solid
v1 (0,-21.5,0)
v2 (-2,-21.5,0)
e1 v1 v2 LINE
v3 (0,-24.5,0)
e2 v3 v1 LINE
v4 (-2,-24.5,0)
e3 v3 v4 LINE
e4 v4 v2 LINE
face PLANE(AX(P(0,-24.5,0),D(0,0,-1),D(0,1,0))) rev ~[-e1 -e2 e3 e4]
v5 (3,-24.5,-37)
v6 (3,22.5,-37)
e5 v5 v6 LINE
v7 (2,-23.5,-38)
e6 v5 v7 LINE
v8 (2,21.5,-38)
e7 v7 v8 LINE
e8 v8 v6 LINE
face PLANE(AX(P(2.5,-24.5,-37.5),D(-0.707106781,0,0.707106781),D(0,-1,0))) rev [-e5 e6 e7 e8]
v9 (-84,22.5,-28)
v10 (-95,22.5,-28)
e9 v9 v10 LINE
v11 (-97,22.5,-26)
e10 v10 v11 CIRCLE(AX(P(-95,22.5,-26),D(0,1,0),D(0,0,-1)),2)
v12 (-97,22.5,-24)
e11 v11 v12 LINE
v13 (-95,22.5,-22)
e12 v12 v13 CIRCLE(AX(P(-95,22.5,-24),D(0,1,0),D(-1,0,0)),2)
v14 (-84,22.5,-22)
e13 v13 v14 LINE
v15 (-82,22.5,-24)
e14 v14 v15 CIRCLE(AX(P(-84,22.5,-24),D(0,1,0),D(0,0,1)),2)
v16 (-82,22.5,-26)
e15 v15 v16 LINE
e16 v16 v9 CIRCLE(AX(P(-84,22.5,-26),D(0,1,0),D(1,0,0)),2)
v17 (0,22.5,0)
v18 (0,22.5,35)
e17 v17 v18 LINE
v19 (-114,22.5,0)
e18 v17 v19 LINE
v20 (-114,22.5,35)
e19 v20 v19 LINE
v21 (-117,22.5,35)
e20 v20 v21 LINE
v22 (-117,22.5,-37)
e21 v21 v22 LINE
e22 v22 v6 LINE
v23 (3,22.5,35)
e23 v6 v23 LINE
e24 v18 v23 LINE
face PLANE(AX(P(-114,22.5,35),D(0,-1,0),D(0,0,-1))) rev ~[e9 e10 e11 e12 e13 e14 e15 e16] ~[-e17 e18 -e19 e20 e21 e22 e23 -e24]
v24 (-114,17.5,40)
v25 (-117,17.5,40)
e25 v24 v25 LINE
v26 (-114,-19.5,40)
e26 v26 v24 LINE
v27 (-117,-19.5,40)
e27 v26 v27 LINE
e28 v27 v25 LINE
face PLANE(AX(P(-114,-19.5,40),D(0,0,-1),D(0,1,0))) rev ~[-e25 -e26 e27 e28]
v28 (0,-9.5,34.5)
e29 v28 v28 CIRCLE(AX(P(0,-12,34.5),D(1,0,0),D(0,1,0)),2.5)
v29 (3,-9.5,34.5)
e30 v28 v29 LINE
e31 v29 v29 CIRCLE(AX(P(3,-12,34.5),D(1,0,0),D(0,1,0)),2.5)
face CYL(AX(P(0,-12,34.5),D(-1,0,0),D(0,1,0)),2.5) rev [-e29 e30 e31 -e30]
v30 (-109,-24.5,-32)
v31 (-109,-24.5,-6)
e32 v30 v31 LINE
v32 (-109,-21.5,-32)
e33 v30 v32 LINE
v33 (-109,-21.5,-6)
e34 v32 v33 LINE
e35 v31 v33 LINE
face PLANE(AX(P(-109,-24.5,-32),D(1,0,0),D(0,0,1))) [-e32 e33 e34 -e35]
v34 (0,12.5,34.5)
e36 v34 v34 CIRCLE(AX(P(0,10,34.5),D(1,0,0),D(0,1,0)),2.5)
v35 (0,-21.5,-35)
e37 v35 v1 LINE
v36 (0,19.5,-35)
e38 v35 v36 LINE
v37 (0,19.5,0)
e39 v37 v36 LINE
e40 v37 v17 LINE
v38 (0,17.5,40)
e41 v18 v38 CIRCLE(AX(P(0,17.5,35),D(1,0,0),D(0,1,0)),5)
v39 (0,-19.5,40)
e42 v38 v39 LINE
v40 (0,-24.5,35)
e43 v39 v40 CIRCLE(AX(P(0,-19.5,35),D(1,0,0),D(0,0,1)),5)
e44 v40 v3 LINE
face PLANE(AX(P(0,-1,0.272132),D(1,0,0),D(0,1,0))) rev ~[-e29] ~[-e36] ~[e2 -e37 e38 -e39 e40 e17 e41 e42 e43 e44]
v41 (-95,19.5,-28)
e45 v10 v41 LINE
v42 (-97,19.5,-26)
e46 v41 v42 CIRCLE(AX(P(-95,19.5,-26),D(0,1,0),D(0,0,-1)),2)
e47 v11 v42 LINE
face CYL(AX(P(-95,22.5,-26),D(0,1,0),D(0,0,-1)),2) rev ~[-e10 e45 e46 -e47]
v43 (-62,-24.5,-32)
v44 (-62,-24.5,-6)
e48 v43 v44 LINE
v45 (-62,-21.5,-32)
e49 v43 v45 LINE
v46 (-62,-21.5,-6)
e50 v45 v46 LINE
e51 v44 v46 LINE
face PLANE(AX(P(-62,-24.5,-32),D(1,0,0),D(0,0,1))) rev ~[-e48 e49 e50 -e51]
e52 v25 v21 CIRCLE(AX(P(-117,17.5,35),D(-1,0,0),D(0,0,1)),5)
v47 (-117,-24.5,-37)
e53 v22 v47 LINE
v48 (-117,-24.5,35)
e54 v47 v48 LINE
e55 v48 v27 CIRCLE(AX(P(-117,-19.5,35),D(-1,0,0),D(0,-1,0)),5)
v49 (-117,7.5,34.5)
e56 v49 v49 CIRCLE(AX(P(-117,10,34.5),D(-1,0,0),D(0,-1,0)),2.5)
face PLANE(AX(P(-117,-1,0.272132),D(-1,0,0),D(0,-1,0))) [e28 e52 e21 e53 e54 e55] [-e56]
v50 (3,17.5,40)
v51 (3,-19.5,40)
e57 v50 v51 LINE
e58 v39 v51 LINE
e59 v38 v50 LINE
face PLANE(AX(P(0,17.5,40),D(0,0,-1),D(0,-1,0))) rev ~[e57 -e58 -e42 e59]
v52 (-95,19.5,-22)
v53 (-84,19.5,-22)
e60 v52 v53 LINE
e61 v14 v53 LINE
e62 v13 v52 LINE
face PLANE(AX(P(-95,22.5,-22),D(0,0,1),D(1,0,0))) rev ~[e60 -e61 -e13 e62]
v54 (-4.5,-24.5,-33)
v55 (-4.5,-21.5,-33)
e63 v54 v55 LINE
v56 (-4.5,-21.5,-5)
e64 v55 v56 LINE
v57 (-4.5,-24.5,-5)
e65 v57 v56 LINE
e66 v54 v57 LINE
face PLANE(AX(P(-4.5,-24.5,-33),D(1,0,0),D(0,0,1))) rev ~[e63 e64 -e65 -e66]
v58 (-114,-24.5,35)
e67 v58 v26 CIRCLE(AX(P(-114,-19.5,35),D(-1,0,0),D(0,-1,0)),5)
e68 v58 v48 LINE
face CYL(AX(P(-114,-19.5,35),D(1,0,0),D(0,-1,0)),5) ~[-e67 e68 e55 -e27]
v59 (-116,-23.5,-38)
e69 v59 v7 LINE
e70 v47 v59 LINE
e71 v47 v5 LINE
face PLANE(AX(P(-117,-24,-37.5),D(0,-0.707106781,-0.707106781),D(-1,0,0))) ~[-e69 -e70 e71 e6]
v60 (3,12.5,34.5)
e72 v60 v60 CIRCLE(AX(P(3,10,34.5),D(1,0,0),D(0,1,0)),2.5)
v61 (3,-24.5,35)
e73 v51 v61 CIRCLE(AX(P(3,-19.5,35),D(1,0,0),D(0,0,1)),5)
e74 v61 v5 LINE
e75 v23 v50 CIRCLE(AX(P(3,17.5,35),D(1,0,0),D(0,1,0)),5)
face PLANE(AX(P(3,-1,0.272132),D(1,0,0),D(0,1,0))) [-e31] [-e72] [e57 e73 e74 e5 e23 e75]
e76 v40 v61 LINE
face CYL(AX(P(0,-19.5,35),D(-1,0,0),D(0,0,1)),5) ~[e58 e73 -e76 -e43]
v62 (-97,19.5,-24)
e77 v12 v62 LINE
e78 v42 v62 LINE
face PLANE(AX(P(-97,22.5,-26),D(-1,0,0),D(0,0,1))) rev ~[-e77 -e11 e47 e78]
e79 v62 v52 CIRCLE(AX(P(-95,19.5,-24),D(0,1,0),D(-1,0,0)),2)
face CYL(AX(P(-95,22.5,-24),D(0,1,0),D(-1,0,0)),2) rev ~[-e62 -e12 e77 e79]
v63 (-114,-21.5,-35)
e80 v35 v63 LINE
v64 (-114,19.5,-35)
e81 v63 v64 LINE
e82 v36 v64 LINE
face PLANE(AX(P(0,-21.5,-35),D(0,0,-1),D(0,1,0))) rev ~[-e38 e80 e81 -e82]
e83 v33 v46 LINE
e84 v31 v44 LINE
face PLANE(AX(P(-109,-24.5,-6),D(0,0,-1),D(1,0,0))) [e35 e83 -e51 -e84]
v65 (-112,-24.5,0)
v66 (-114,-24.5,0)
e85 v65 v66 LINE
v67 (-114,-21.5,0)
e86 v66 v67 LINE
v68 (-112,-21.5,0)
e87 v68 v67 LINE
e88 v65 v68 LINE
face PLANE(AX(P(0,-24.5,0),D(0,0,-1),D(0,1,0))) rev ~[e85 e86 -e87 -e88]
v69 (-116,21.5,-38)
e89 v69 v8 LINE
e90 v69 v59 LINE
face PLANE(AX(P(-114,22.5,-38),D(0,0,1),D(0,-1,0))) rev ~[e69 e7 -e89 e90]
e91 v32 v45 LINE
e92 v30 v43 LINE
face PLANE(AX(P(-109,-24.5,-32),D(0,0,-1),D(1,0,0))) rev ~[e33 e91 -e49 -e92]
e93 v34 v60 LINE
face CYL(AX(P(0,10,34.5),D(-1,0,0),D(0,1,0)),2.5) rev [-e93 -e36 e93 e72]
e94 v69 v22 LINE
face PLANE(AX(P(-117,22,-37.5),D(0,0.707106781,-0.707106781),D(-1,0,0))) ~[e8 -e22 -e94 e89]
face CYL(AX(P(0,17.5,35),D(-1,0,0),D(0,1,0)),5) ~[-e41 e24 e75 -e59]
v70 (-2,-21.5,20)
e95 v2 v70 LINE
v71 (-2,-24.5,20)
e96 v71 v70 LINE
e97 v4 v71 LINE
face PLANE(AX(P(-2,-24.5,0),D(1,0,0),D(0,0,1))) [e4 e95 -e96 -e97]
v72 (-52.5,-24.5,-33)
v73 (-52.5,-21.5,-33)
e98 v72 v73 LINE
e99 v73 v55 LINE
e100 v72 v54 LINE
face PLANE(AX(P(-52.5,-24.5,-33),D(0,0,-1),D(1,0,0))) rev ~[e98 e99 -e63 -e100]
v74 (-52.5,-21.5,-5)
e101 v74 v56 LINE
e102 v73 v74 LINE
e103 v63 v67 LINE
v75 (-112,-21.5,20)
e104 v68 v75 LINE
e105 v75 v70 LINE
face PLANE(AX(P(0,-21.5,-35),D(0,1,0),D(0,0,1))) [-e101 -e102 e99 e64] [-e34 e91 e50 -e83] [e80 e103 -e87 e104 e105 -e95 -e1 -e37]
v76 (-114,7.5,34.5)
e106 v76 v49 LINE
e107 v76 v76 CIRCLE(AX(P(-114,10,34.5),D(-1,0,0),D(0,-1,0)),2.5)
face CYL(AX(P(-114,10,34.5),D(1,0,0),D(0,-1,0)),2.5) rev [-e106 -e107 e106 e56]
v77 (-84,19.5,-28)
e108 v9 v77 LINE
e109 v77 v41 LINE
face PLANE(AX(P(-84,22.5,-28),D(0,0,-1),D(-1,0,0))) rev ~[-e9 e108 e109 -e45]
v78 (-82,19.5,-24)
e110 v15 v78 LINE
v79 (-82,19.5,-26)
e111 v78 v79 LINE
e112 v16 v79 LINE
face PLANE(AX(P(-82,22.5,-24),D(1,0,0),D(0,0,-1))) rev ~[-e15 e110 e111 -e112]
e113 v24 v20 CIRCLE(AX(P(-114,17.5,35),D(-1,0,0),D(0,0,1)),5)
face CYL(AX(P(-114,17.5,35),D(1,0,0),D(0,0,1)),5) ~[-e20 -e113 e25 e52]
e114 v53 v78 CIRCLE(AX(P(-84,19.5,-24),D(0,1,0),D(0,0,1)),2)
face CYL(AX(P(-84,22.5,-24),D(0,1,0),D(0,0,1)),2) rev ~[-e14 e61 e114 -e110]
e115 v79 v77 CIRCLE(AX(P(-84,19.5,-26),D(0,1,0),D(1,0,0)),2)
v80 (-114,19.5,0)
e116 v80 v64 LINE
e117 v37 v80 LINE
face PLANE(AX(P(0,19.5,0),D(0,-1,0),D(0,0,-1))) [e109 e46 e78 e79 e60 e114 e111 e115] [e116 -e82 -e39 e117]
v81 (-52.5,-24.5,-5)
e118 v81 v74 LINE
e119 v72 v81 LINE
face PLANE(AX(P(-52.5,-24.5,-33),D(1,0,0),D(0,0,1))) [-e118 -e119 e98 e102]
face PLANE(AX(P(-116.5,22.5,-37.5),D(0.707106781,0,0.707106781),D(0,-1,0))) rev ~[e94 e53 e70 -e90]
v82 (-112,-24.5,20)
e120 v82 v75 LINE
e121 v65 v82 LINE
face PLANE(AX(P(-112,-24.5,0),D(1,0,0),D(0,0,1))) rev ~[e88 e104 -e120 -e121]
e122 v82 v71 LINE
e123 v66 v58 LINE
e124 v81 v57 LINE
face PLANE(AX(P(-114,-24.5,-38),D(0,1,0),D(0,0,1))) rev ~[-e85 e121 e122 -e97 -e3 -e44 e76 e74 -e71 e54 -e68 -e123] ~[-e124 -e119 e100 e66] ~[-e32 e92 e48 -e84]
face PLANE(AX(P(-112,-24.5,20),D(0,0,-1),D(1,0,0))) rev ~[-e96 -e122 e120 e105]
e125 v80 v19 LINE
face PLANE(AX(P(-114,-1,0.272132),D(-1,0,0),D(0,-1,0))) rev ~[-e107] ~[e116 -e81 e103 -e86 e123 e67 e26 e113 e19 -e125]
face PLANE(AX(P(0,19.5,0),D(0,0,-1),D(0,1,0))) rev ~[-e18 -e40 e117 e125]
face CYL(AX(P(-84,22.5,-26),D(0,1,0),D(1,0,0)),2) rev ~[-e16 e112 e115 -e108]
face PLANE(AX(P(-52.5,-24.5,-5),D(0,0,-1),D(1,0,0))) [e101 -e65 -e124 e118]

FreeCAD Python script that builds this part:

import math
import FreeCAD as App
import Part
import Sketcher

V = App.Vector
Q = App.Units.Quantity


def edges_at(feature, points):
    """Names of the edges that pass closest to the given points."""
    edges = feature.Shape.Edges
    near = lambda p: min(range(len(edges)), key=lambda i: edges[i].distToShape(Part.Vertex(*p))[0])
    return sorted({f"Edge{near(p) + 1}" for p in points})

doc = App.newDocument("Part")
body = doc.addObject("PartDesign::Body", "Body")

# Sketch on YZ plane
sketch1 = doc.addObject("Sketcher::SketchObject", "Sketch")
body.addObject(sketch1)
sketch1.AttachmentSupport = (doc.YZ_Plane, [""])
sketch1.MapMode = "FlatFace"
sketch1.addGeometry([
    Part.ArcOfCircle(Part.Circle(V(17.5, 35, 0), V(0, 0, 1), 5), math.radians(0), math.radians(90)),  # 0
    Part.LineSegment(V(17.5, 40, 0), V(-19.5, 40, 0)),  # 1
    Part.ArcOfCircle(Part.Circle(V(-19.5, 35, 0), V(0, 0, 1), 5), math.radians(90), math.radians(180)),  # 2
    Part.LineSegment(V(-24.5, 35, 0), V(-24.5, -38, 0)),  # 3
    Part.LineSegment(V(-24.5, -38, 0), V(22.5, -38, 0)),  # 4
    Part.LineSegment(V(22.5, -38, 0), V(22.5, 35, 0)),  # 5
    Part.Circle(V(-12, 34.5, 0), V(0, 0, 1), 2.5),  # 6
    Part.Circle(V(10, 34.5, 0), V(0, 0, 1), 2.5),  # 7
], False)
sketch1.addConstraint([
    Sketcher.Constraint("Tangent", 0, 2, 1, 1),
    Sketcher.Constraint("Tangent", 1, 2, 2, 1),
    Sketcher.Constraint("Tangent", 2, 2, 3, 1),
    Sketcher.Constraint("Coincident", 3, 2, 4, 1),
    Sketcher.Constraint("Coincident", 4, 2, 5, 1),
    Sketcher.Constraint("Tangent", 5, 2, 0, 1),
    Sketcher.Constraint("Horizontal", 1),
    Sketcher.Constraint("Vertical", 3),
    Sketcher.Constraint("Horizontal", 4),
    Sketcher.Constraint("Vertical", 5),
    Sketcher.Constraint("Equal", 0, 2),
    Sketcher.Constraint("Equal", 6, 7),
    Sketcher.Constraint("Horizontal", 6, 3, 7, 3),
    Sketcher.Constraint("Diameter", 6, Q("5 mm")),
    Sketcher.Constraint("Radius", 0, Q("5 mm")),
    Sketcher.Constraint("DistanceX", 1, 2, 1, 1, Q("37 mm")),
    Sketcher.Constraint("DistanceY", 3, 2, 3, 1, Q("73 mm")),
    Sketcher.Constraint("DistanceY", -1, 1, 0, 3, Q("35 mm")),
    Sketcher.Constraint("DistanceX", 6, 3, -1, 1, Q("12 mm")),
    Sketcher.Constraint("DistanceX", -1, 1, 7, 3, Q("10 mm")),
    Sketcher.Constraint("DistanceX", -1, 1, 0, 3, Q("17.5 mm")),
    Sketcher.Constraint("DistanceY", -1, 1, 6, 3, Q("34.5 mm")),
])
pad1 = doc.addObject("PartDesign::Pad", "Pad")
body.addObject(pad1)
pad1.Profile = sketch1
pad1.Length = 3

# Sketch on YZ plane
sketch2 = doc.addObject("Sketcher::SketchObject", "Sketch001")
body.addObject(sketch2)
sketch2.AttachmentSupport = (doc.YZ_Plane, [""])
sketch2.MapMode = "FlatFace"
sketch2.addGeometry([
    Part.LineSegment(V(-24.5, 0, 0), V(-24.5, -38, 0)),  # 0
    Part.LineSegment(V(-24.5, -38, 0), V(22.5, -38, 0)),  # 1
    Part.LineSegment(V(22.5, -38, 0), V(22.5, 0, 0)),  # 2
    Part.LineSegment(V(22.5, 0, 0), V(19.5, 0, 0)),  # 3
    Part.LineSegment(V(19.5, 0, 0), V(19.5, -35, 0)),  # 4
    Part.LineSegment(V(19.5, -35, 0), V(-21.5, -35, 0)),  # 5
    Part.LineSegment(V(-21.5, -35, 0), V(-21.5, 0, 0)),  # 6
    Part.LineSegment(V(-21.5, 0, 0), V(-24.5, 0, 0)),  # 7
], False)
sketch2.addConstraint([
    Sketcher.Constraint("Coincident", 0, 2, 1, 1),
    Sketcher.Constraint("Coincident", 1, 2, 2, 1),
    Sketcher.Constraint("Coincident", 2, 2, 3, 1),
    Sketcher.Constraint("Coincident", 3, 2, 4, 1),
    Sketcher.Constraint("Coincident", 4, 2, 5, 1),
    Sketcher.Constraint("Coincident", 5, 2, 6, 1),
    Sketcher.Constraint("Coincident", 6, 2, 7, 1),
    Sketcher.Constraint("Coincident", 7, 2, 0, 1),
    Sketcher.Constraint("Vertical", 0),
    Sketcher.Constraint("Horizontal", 1),
    Sketcher.Constraint("Vertical", 2),
    Sketcher.Constraint("Horizontal", 3),
    Sketcher.Constraint("Vertical", 4),
    Sketcher.Constraint("Horizontal", 5),
    Sketcher.Constraint("Vertical", 6),
    Sketcher.Constraint("Horizontal", 7),
    Sketcher.Constraint("PointOnObject", 2, 2, -1),
    Sketcher.Constraint("PointOnObject", 6, 2, -1),
    Sketcher.Constraint("Equal", 3, 7),
    Sketcher.Constraint("DistanceX", 1, 1, 1, 2, Q("47 mm")),
    Sketcher.Constraint("DistanceX", 3, 2, 3, 1, Q("3 mm")),
    Sketcher.Constraint("DistanceY", 0, 2, 0, 1, Q("38 mm")),
    Sketcher.Constraint("DistanceY", 4, 2, 4, 1, Q("35 mm")),
    Sketcher.Constraint("DistanceX", 0, 2, -1, 1, Q("24.5 mm")),
])
pad2 = doc.addObject("PartDesign::Pad", "Pad001")
body.addObject(pad2)
pad2.Profile = sketch2
pad2.Length = 114
pad2.Reversed = True

# Sketch on YZ plane
sketch3 = doc.addObject("Sketcher::SketchObject", "Sketch002")
body.addObject(sketch3)
sketch3.AttachmentSupport = (doc.YZ_Plane, [""])
sketch3.MapMode = "FlatFace"
sketch3.AttachmentOffset = App.Placement(V(0, 0, -114), App.Rotation())
sketch3.addGeometry([
    Part.ArcOfCircle(Part.Circle(V(-19.5, 35, 0), V(0, 0, 1), 5), math.radians(90), math.radians(180)),  # 0
    Part.LineSegment(V(-19.5, 40, 0), V(17.5, 40, 0)),  # 1
    Part.ArcOfCircle(Part.Circle(V(17.5, 35, 0), V(0, 0, 1), 5), math.radians(0), math.radians(90)),  # 2
    Part.LineSegment(V(22.5, 35, 0), V(22.5, -38, 0)),  # 3
    Part.LineSegment(V(22.5, -38, 0), V(-24.5, -38, 0)),  # 4
    Part.LineSegment(V(-24.5, -38, 0), V(-24.5, 35, 0)),  # 5
    Part.Circle(V(10, 34.5, 0), V(0, 0, 1), 2.5),  # 6
], False)
sketch3.addConstraint([
    Sketcher.Constraint("Tangent", 0, 1, 1, 1),
    Sketcher.Constraint("Tangent", 1, 2, 2, 2),
    Sketcher.Constraint("Tangent", 2, 1, 3, 1),
    Sketcher.Constraint("Coincident", 3, 2, 4, 1),
    Sketcher.Constraint("Coincident", 4, 2, 5, 1),
    Sketcher.Constraint("Tangent", 5, 2, 0, 2),
    Sketcher.Constraint("Horizontal", 1),
    Sketcher.Constraint("Vertical", 3),
    Sketcher.Constraint("Horizontal", 4),
    Sketcher.Constraint("Vertical", 5),
    Sketcher.Constraint("Equal", 0, 2),
    Sketcher.Constraint("Diameter", 6, Q("5 mm")),
    Sketcher.Constraint("Radius", 0, Q("5 mm")),
    Sketcher.Constraint("DistanceX", 1, 1, 1, 2, Q("37 mm")),
    Sketcher.Constraint("DistanceY", 3, 2, 3, 1, Q("73 mm")),
    Sketcher.Constraint("DistanceY", -1, 1, 0, 3, Q("35 mm")),
    Sketcher.Constraint("DistanceX", -1, 1, 6, 3, Q("10 mm")),
    Sketcher.Constraint("DistanceX", 0, 3, -1, 1, Q("19.5 mm")),
    Sketcher.Constraint("DistanceY", -1, 1, 6, 3, Q("34.5 mm")),
])
pad3 = doc.addObject("PartDesign::Pad", "Pad002")
body.addObject(pad3)
pad3.Profile = sketch3
pad3.Length = 3
pad3.Reversed = True

# Sketch on XZ plane
sketch4 = doc.addObject("Sketcher::SketchObject", "Sketch003")
body.addObject(sketch4)
sketch4.AttachmentSupport = (doc.XZ_Plane, [""])
sketch4.MapMode = "FlatFace"
sketch4.AttachmentOffset = App.Placement(V(0, 0, 24.5), App.Rotation())
sketch4.addGeometry([
    Part.LineSegment(V(-112, 20, 0), V(-112, 0, 0)),
    Part.LineSegment(V(-112, 0, 0), V(-2, 0, 0)),
    Part.LineSegment(V(-2, 0, 0), V(-2, 20, 0)),
    Part.LineSegment(V(-2, 20, 0), V(-112, 20, 0)),
], False)
sketch4.addConstraint([
    Sketcher.Constraint("Coincident", 0, 2, 1, 1),
    Sketcher.Constraint("Coincident", 1, 2, 2, 1),
    Sketcher.Constraint("Coincident", 2, 2, 3, 1),
    Sketcher.Constraint("Coincident", 3, 2, 0, 1),
    Sketcher.Constraint("Vertical", 0),
    Sketcher.Constraint("Horizontal", 1),
    Sketcher.Constraint("Vertical", 2),
    Sketcher.Constraint("Horizontal", 3),
    Sketcher.Constraint("PointOnObject", 0, 2, -1),
    Sketcher.Constraint("DistanceX", 1, 1, 1, 2, Q("110 mm")),
    Sketcher.Constraint("DistanceY", 0, 2, 0, 1, Q("20 mm")),
    Sketcher.Constraint("DistanceX", 0, 2, -1, 1, Q("112 mm")),
])
pad4 = doc.addObject("PartDesign::Pad", "Pad003")
body.addObject(pad4)
pad4.Profile = sketch4
pad4.Length = 3
pad4.Reversed = True

# Sketch on XZ plane
sketch5 = doc.addObject("Sketcher::SketchObject", "Sketch004")
body.addObject(sketch5)
sketch5.AttachmentSupport = (doc.XZ_Plane, [""])
sketch5.MapMode = "FlatFace"
sketch5.AttachmentOffset = App.Placement(V(0, 0, 24.5), App.Rotation())
sketch5.addGeometry([
    Part.LineSegment(V(-109, -6, 0), V(-109, -32, 0)),  # 0
    Part.LineSegment(V(-109, -32, 0), V(-62, -32, 0)),  # 1
    Part.LineSegment(V(-62, -32, 0), V(-62, -6, 0)),  # 2
    Part.LineSegment(V(-62, -6, 0), V(-109, -6, 0)),  # 3
    Part.LineSegment(V(-52, -5, 0), V(-52, -33, 0)),  # 4
    Part.LineSegment(V(-52, -33, 0), V(-4, -33, 0)),  # 5
    Part.LineSegment(V(-4, -33, 0), V(-4, -5, 0)),  # 6
    Part.LineSegment(V(-4, -5, 0), V(-52, -5, 0)),  # 7
], False)
sketch5.addConstraint([
    Sketcher.Constraint("Coincident", 0, 2, 1, 1),
    Sketcher.Constraint("Coincident", 1, 2, 2, 1),
    Sketcher.Constraint("Coincident", 2, 2, 3, 1),
    Sketcher.Constraint("Coincident", 3, 2, 0, 1),
    Sketcher.Constraint("Coincident", 4, 2, 5, 1),
    Sketcher.Constraint("Coincident", 5, 2, 6, 1),
    Sketcher.Constraint("Coincident", 6, 2, 7, 1),
    Sketcher.Constraint("Coincident", 7, 2, 4, 1),
    Sketcher.Constraint("Vertical", 0),
    Sketcher.Constraint("Horizontal", 1),
    Sketcher.Constraint("Vertical", 2),
    Sketcher.Constraint("Horizontal", 3),
    Sketcher.Constraint("Vertical", 4),
    Sketcher.Constraint("Horizontal", 5),
    Sketcher.Constraint("Vertical", 6),
    Sketcher.Constraint("Horizontal", 7),
    Sketcher.Constraint("DistanceX", 1, 1, 1, 2, Q("47 mm")),
    Sketcher.Constraint("DistanceX", 5, 1, 5, 2, Q("48 mm")),
    Sketcher.Constraint("DistanceY", 0, 2, 0, 1, Q("26 mm")),
    Sketcher.Constraint("DistanceY", 4, 2, 4, 1, Q("28 mm")),
    Sketcher.Constraint("DistanceX", 0, 2, -1, 1, Q("109 mm")),
    Sketcher.Constraint("DistanceY", 0, 2, -1, 1, Q("32 mm")),
    Sketcher.Constraint("DistanceY", 4, 2, -1, 1, Q("33 mm")),
    Sketcher.Constraint("DistanceX", 4, 2, -1, 1, Q("52.5 mm")),
])
pocket1 = doc.addObject("PartDesign::Pocket", "Pocket")
body.addObject(pocket1)
pocket1.Profile = sketch5
pocket1.Length = 3

# Sketch on XZ plane
sketch6 = doc.addObject("Sketcher::SketchObject", "Sketch005")
body.addObject(sketch6)
sketch6.AttachmentSupport = (doc.XZ_Plane, [""])
sketch6.MapMode = "FlatFace"
sketch6.AttachmentOffset = App.Placement(V(0, 0, -22.5), App.Rotation())
sketch6.addGeometry([
    Part.ArcOfCircle(Part.Circle(V(-84, -26, 0), V(0, 0, 1), 2), math.radians(-90), math.radians(0)),  # 0
    Part.LineSegment(V(-84, -28, 0), V(-95, -28, 0)),  # 1
    Part.ArcOfCircle(Part.Circle(V(-95, -26, 0), V(0, 0, 1), 2), math.radians(180), math.radians(270)),  # 2
    Part.LineSegment(V(-97, -26, 0), V(-97, -24, 0)),  # 3
    Part.ArcOfCircle(Part.Circle(V(-95, -24, 0), V(0, 0, 1), 2), math.radians(90), math.radians(180)),  # 4
    Part.LineSegment(V(-95, -22, 0), V(-84, -22, 0)),  # 5
    Part.ArcOfCircle(Part.Circle(V(-84, -24, 0), V(0, 0, 1), 2), math.radians(0), math.radians(90)),  # 6
    Part.LineSegment(V(-82, -24, 0), V(-82, -26, 0)),  # 7
], False)
sketch6.addConstraint([
    Sketcher.Constraint("Tangent", 0, 1, 1, 1),
    Sketcher.Constraint("Tangent", 1, 2, 2, 2),
    Sketcher.Constraint("Tangent", 2, 1, 3, 1),
    Sketcher.Constraint("Tangent", 3, 2, 4, 2),
    Sketcher.Constraint("Tangent", 4, 1, 5, 1),
    Sketcher.Constraint("Tangent", 5, 2, 6, 2),
    Sketcher.Constraint("Tangent", 6, 1, 7, 1),
    Sketcher.Constraint("Tangent", 7, 2, 0, 2),
    Sketcher.Constraint("Horizontal", 1),
    Sketcher.Constraint("Vertical", 3),
    Sketcher.Constraint("Horizontal", 5),
    Sketcher.Constraint("Vertical", 7),
    Sketcher.Constraint("Equal", 0, 2),
    Sketcher.Constraint("Equal", 2, 4),
    Sketcher.Constraint("Equal", 4, 6),
    Sketcher.Constraint("Radius", 0, Q("2 mm")),
    Sketcher.Constraint("DistanceX", 1, 2, 1, 1, Q("11 mm")),
    Sketcher.Constraint("DistanceY", 3, 1, 3, 2, Q("2 mm")),
    Sketcher.Constraint("DistanceX", 0, 3, -1, 1, Q("84 mm")),
    Sketcher.Constraint("DistanceY", 0, 3, -1, 1, Q("26 mm")),
])
pocket2 = doc.addObject("PartDesign::Pocket", "Pocket001")
body.addObject(pocket2)
pocket2.Profile = sketch6
pocket2.Type = "ThroughAll"
pocket2.Reversed = True
doc.recompute()

chamfer = doc.addObject("PartDesign::Chamfer", "Chamfer")
body.addObject(chamfer)
chamfer.Base = (pocket2, edges_at(pocket2, [
    (-57, -24.5, -38),
    (3, -1, -38),
    (-57, 22.5, -38),
    (-117, -1, -38),
]))
chamfer.Size = 1

doc.recompute()
